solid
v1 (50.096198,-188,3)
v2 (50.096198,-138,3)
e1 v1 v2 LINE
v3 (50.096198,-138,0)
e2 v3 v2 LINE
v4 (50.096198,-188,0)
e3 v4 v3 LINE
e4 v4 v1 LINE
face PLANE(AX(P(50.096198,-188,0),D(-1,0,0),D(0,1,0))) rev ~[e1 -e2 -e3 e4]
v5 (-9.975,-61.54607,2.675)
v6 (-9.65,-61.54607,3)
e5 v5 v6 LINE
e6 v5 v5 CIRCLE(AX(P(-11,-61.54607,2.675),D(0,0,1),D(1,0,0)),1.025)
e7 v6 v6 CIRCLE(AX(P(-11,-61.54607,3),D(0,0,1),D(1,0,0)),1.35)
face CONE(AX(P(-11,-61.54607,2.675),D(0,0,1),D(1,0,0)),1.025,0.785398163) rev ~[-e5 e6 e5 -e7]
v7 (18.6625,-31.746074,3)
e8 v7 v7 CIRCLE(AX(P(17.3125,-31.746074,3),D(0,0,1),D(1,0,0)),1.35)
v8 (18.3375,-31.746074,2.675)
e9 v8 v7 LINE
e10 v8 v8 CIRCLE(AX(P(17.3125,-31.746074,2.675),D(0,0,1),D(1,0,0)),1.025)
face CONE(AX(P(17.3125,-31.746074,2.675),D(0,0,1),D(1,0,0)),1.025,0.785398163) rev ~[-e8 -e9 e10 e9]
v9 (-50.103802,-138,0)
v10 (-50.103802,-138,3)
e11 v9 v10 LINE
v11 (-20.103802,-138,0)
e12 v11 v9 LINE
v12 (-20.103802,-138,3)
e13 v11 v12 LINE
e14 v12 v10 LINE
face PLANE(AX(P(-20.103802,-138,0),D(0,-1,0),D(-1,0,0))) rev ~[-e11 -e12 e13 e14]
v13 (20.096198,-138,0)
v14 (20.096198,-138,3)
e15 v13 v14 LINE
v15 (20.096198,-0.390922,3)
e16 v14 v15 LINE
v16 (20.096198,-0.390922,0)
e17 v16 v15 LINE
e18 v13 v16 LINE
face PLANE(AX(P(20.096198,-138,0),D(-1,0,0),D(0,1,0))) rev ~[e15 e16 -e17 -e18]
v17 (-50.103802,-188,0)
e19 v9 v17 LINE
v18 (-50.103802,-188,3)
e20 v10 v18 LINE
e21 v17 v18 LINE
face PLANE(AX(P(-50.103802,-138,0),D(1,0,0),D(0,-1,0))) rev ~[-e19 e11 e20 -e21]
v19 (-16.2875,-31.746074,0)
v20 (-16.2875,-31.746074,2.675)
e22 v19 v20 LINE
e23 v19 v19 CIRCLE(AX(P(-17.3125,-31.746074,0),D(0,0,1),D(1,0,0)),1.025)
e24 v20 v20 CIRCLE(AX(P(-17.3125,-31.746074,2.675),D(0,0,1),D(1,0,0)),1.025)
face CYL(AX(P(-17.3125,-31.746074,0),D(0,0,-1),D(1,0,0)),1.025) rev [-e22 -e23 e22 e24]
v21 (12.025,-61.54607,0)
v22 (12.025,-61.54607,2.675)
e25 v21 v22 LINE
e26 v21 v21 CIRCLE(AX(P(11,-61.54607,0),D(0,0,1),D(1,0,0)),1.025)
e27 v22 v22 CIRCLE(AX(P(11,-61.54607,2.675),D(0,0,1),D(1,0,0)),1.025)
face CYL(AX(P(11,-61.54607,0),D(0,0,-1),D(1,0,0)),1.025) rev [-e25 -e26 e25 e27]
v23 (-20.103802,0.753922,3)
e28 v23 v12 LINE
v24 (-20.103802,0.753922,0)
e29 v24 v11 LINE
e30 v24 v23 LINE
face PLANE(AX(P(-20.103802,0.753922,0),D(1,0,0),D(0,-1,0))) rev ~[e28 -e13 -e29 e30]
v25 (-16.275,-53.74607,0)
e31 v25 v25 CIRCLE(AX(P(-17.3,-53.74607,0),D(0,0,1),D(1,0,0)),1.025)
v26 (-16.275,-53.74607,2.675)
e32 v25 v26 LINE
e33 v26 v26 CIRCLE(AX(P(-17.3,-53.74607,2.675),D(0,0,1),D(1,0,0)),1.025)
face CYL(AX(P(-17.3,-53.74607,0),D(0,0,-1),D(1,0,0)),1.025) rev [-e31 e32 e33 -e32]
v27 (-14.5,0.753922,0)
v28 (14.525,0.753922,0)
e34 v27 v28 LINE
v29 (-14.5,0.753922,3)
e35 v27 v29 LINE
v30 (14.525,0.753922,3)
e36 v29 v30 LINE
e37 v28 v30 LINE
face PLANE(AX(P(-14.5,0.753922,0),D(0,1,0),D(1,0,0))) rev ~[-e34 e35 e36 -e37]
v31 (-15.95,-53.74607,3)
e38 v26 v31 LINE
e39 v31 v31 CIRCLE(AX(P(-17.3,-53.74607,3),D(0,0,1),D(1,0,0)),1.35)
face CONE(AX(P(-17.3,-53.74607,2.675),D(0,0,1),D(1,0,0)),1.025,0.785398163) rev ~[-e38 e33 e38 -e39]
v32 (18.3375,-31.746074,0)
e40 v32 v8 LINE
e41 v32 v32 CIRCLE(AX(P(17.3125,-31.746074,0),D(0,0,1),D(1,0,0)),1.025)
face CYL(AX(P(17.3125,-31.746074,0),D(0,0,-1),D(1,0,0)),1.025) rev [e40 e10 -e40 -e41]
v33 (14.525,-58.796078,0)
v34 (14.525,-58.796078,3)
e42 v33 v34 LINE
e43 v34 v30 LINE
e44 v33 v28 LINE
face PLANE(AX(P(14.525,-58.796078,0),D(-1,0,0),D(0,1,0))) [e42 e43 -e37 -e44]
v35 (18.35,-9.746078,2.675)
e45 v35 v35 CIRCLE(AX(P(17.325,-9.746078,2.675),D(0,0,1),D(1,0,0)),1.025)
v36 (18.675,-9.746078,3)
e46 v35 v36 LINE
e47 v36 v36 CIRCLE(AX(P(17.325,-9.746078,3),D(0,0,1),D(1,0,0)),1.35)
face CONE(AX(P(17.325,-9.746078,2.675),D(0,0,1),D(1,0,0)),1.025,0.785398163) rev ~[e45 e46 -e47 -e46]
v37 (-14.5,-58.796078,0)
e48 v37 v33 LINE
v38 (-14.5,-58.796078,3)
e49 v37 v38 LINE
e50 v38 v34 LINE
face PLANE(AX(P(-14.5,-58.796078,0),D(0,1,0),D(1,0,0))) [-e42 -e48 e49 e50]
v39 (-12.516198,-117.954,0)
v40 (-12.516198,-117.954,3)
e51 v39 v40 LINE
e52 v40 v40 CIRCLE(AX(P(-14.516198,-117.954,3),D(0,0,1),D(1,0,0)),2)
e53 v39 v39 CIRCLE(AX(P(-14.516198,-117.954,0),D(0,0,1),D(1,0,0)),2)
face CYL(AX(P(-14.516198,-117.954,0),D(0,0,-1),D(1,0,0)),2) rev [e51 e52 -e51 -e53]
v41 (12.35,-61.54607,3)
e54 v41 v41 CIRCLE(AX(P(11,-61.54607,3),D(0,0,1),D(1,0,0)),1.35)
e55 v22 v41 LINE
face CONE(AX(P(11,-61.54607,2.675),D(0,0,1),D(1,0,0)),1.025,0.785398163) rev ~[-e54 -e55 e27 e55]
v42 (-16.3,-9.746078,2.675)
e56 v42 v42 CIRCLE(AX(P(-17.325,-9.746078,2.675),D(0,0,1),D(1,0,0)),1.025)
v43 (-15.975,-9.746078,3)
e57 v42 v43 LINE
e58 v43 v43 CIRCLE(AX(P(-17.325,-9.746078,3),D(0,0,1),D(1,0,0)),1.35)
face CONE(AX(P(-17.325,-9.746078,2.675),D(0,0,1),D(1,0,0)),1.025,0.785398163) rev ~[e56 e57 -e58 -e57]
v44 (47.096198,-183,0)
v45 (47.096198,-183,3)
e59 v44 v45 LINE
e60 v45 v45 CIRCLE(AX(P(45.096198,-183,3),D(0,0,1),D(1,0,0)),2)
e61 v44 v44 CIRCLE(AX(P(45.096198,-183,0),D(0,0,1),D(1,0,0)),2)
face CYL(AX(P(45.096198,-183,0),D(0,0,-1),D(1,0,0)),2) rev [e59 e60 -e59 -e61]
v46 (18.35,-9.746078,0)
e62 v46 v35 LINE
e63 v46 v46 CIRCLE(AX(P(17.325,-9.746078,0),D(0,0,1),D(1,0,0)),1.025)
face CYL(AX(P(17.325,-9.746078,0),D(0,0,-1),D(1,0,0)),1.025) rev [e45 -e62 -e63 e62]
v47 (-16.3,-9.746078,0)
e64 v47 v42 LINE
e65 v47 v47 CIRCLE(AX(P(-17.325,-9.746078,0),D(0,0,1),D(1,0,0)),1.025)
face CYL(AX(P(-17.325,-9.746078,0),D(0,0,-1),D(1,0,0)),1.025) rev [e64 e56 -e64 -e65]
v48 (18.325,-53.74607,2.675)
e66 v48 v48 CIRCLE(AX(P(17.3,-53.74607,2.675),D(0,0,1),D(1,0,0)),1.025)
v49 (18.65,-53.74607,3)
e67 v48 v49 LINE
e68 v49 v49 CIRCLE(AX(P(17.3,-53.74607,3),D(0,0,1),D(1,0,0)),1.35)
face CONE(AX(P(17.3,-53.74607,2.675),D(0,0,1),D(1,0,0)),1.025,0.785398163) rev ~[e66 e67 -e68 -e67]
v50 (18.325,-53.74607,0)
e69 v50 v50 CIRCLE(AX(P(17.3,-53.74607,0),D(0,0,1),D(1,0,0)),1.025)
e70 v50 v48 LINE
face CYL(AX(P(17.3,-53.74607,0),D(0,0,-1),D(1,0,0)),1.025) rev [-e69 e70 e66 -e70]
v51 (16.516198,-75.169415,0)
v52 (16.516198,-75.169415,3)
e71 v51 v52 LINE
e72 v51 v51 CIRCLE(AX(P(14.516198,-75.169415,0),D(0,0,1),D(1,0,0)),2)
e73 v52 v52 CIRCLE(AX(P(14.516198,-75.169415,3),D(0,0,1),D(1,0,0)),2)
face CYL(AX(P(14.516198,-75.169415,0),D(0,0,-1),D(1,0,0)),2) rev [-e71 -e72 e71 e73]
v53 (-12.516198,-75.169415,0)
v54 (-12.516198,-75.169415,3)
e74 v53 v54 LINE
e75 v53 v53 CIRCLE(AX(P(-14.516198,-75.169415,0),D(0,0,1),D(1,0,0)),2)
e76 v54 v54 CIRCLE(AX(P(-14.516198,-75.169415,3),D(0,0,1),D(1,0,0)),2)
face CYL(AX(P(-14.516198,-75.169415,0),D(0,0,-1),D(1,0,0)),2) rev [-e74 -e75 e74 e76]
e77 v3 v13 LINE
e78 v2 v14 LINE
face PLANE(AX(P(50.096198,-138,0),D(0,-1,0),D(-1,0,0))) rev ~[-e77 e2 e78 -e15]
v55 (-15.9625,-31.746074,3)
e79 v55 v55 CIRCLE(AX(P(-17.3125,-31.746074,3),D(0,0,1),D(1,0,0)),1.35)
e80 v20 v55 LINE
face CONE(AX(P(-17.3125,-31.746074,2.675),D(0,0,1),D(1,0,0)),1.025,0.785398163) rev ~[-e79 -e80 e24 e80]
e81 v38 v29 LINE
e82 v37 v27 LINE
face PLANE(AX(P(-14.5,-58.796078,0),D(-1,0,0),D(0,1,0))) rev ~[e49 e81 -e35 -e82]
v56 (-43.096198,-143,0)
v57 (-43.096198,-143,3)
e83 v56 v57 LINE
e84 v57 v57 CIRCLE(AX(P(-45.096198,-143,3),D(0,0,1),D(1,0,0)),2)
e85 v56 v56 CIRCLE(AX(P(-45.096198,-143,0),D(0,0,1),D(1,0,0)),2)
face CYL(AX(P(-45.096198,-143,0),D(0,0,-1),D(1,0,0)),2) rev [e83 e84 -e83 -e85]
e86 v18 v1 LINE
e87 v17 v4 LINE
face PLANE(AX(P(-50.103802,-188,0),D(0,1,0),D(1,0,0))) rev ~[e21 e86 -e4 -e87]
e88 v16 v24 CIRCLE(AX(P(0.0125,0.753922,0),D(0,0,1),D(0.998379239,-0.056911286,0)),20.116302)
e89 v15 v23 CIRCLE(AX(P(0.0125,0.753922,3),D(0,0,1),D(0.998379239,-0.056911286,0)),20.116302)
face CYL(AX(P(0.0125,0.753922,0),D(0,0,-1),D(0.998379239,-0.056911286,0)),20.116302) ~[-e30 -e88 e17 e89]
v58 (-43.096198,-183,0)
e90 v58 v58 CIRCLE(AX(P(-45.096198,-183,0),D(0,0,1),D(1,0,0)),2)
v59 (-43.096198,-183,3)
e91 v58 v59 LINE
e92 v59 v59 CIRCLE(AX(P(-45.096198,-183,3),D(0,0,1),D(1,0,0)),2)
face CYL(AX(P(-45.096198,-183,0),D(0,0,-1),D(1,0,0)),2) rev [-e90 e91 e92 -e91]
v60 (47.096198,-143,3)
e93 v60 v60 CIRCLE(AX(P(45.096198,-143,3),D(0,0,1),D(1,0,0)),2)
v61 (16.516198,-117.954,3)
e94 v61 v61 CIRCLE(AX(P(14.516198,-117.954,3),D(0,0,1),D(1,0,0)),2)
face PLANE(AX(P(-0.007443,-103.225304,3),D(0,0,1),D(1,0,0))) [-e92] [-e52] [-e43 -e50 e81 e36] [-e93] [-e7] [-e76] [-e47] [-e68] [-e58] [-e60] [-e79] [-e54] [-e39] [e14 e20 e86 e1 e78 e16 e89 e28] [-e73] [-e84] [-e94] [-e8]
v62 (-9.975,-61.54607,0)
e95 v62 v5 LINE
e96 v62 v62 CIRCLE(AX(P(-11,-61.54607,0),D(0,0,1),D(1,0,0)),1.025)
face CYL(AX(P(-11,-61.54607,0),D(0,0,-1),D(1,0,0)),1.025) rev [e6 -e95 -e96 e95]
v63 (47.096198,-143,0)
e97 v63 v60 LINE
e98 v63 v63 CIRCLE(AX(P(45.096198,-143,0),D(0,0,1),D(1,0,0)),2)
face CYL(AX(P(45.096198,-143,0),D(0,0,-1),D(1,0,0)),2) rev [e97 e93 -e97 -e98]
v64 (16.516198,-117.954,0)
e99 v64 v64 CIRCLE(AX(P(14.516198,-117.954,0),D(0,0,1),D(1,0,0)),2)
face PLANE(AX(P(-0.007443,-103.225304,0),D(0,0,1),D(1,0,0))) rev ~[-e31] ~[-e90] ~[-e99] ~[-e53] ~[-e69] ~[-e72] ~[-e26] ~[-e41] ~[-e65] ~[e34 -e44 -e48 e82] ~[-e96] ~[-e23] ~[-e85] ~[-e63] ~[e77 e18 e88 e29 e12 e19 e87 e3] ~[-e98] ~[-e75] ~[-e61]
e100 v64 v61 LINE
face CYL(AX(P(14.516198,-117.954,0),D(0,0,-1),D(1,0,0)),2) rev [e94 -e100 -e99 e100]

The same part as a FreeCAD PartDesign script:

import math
import FreeCAD as App
import Part
import Sketcher
from FreeCAD import Vector
Q = App.Units.Quantity


def edges_at(feature, points):
    """Names of the edges that pass closest to the given points."""
    edges = feature.Shape.Edges
    near = lambda p: min(range(len(edges)), key=lambda i: edges[i].distToShape(Part.Vertex(*p))[0])
    return sorted({f"Edge{near(p) + 1}" for p in points})

doc = App.newDocument("Part")
body = doc.addObject("PartDesign::Body", "Body")

# Sketch on XY plane
sketch1 = body.newObject("Sketcher::SketchObject", "Sketch")
sketch1.AttachmentSupport = (doc.getObject("XY_Plane"), [""])
sketch1.MapMode = "FlatFace"
sketch1.addGeometry(Part.LineSegment(Vector(-20.1, 0.8, 0), Vector(-20.1, -138, 0)), False)
sketch1.addGeometry(Part.LineSegment(Vector(-20.1, -138, 0), Vector(-50.1, -138, 0)), False)
sketch1.addGeometry(Part.LineSegment(Vector(-50.1, -138, 0), Vector(-50.1, -188, 0)), False)
sketch1.addGeometry(Part.LineSegment(Vector(-50.1, -188, 0), Vector(50.1, -188, 0)), False)
sketch1.addGeometry(Part.LineSegment(Vector(50.1, -188, 0), Vector(50.1, -138, 0)), False)
sketch1.addGeometry(Part.LineSegment(Vector(50.1, -138, 0), Vector(20.1, -138, 0)), False)
sketch1.addGeometry(Part.LineSegment(Vector(20.1, -138, 0), Vector(20.1, -0.4, 0)), False)
sketch1.addGeometry(Part.ArcOfCircle(Part.Circle(Vector(0, 0.8, 0), Vector(0, 0, 1), 20.1), math.radians(-3), math.radians(180)), False)
sketch1.addGeometry(Part.Circle(Vector(-45.1, -183, 0), Vector(0, 0, 1), 2), False)
sketch1.addGeometry(Part.Circle(Vector(-45.1, -143, 0), Vector(0, 0, 1), 2), False)
sketch1.addGeometry(Part.Circle(Vector(-14.5, -118, 0), Vector(0, 0, 1), 2), False)
sketch1.addGeometry(Part.Circle(Vector(45.1, -183, 0), Vector(0, 0, 1), 2), False)
sketch1.addGeometry(Part.Circle(Vector(45.1, -143, 0), Vector(0, 0, 1), 2), False)
sketch1.addGeometry(Part.Circle(Vector(14.5, -118, 0), Vector(0, 0, 1), 2), False)
sketch1.addGeometry(Part.Circle(Vector(-14.5, -75.2, 0), Vector(0, 0, 1), 2), False)
sketch1.addGeometry(Part.Circle(Vector(-17.3, -53.7, 0), Vector(0, 0, 1), 1), False)
sketch1.addGeometry(Part.Circle(Vector(-11, -61.5, 0), Vector(0, 0, 1), 1), False)
sketch1.addGeometry(Part.Circle(Vector(-17.3, -31.7, 0), Vector(0, 0, 1), 1), False)
sketch1.addGeometry(Part.Circle(Vector(-17.3, -9.7, 0), Vector(0, 0, 1), 1), False)
sketch1.addGeometry(Part.Circle(Vector(14.5, -75.2, 0), Vector(0, 0, 1), 2), False)
sketch1.addGeometry(Part.Circle(Vector(11, -61.5, 0), Vector(0, 0, 1), 1), False)
sketch1.addGeometry(Part.Circle(Vector(17.3, -53.7, 0), Vector(0, 0, 1), 1), False)
sketch1.addGeometry(Part.LineSegment(Vector(14.5, -58.8, 0), Vector(-14.5, -58.8, 0)), False)
sketch1.addGeometry(Part.LineSegment(Vector(-14.5, -58.8, 0), Vector(-14.5, 0.8, 0)), False)
sketch1.addGeometry(Part.LineSegment(Vector(-14.5, 0.8, 0), Vector(14.5, 0.8, 0)), False)
sketch1.addGeometry(Part.LineSegment(Vector(14.5, 0.8, 0), Vector(14.5, -58.8, 0)), False)
sketch1.addGeometry(Part.Circle(Vector(17.3, -31.7, 0), Vector(0, 0, 1), 1), False)
sketch1.addGeometry(Part.Circle(Vector(17.3, -9.7, 0), Vector(0, 0, 1), 1), False)
sketch1.addConstraint(Sketcher.Constraint("Coincident", 0, 2, 1, 1))
sketch1.addConstraint(Sketcher.Constraint("Coincident", 1, 2, 2, 1))
sketch1.addConstraint(Sketcher.Constraint("Coincident", 2, 2, 3, 1))
sketch1.addConstraint(Sketcher.Constraint("Coincident", 3, 2, 4, 1))
sketch1.addConstraint(Sketcher.Constraint("Coincident", 4, 2, 5, 1))
sketch1.addConstraint(Sketcher.Constraint("Coincident", 5, 2, 6, 1))
sketch1.addConstraint(Sketcher.Constraint("Coincident", 6, 2, 7, 1))
sketch1.addConstraint(Sketcher.Constraint("Tangent", 7, 2, 0, 1))
sketch1.addConstraint(Sketcher.Constraint("Coincident", 22, 2, 23, 1))
sketch1.addConstraint(Sketcher.Constraint("Coincident", 23, 2, 24, 1))
sketch1.addConstraint(Sketcher.Constraint("Coincident", 24, 2, 25, 1))
sketch1.addConstraint(Sketcher.Constraint("Coincident", 25, 2, 22, 1))
sketch1.addConstraint(Sketcher.Constraint("Vertical", 0))
sketch1.addConstraint(Sketcher.Constraint("Horizontal", 1))
sketch1.addConstraint(Sketcher.Constraint("Vertical", 2))
sketch1.addConstraint(Sketcher.Constraint("Horizontal", 3))
sketch1.addConstraint(Sketcher.Constraint("Vertical", 4))
sketch1.addConstraint(Sketcher.Constraint("Horizontal", 5))
sketch1.addConstraint(Sketcher.Constraint("Vertical", 6))
sketch1.addConstraint(Sketcher.Constraint("Horizontal", 22))
sketch1.addConstraint(Sketcher.Constraint("Vertical", 23))
sketch1.addConstraint(Sketcher.Constraint("Horizontal", 24))
sketch1.addConstraint(Sketcher.Constraint("Vertical", 25))
sketch1.addConstraint(Sketcher.Constraint("Equal", 8, 9))
sketch1.addConstraint(Sketcher.Constraint("Equal", 9, 10))
sketch1.addConstraint(Sketcher.Constraint("Equal", 10, 11))
sketch1.addConstraint(Sketcher.Constraint("Equal", 11, 12))
sketch1.addConstraint(Sketcher.Constraint("Equal", 12, 13))
sketch1.addConstraint(Sketcher.Constraint("Equal", 13, 14))
sketch1.addConstraint(Sketcher.Constraint("Equal", 15, 16))
sketch1.addConstraint(Sketcher.Constraint("Equal", 16, 17))
sketch1.addConstraint(Sketcher.Constraint("Equal", 17, 18))
sketch1.addConstraint(Sketcher.Constraint("Equal", 14, 19))
sketch1.addConstraint(Sketcher.Constraint("Equal", 18, 20))
sketch1.addConstraint(Sketcher.Constraint("Equal", 20, 21))
sketch1.addConstraint(Sketcher.Constraint("Equal", 21, 26))
sketch1.addConstraint(Sketcher.Constraint("Equal", 26, 27))
sketch1.addConstraint(Sketcher.Constraint("Symmetric", 8, 3, 11, 3, -2))
sketch1.addConstraint(Sketcher.Constraint("Symmetric", 9, 3, 12, 3, -2))
sketch1.addConstraint(Sketcher.Constraint("Symmetric", 10, 3, 13, 3, -2))
sketch1.addConstraint(Sketcher.Constraint("Symmetric", 14, 3, 19, 3, -2))
sketch1.addConstraint(Sketcher.Constraint("Symmetric", 16, 3, 20, 3, -2))
sketch1.addConstraint(Sketcher.Constraint("Symmetric", 15, 3, 21, 3, -2))
sketch1.addConstraint(Sketcher.Constraint("Symmetric", 17, 3, 26, 3, -2))
sketch1.addConstraint(Sketcher.Constraint("Symmetric", 18, 3, 27, 3, -2))
sketch1.addConstraint(Sketcher.Constraint("Horizontal", 1, 2, 4, 2))
sketch1.addConstraint(Sketcher.Constraint("Horizontal", 7, 2, 23, 2))
sketch1.addConstraint(Sketcher.Constraint("Vertical", 8, 3, 9, 3))
sketch1.addConstraint(Sketcher.Constraint("Vertical", 10, 3, 14, 3))
sketch1.addConstraint(Sketcher.Constraint("Equal", 1, 5))
sketch1.addConstraint(Sketcher.Constraint("Diameter", 8, Q("4 mm")))
sketch1.addConstraint(Sketcher.Constraint("Diameter", 15, Q("2.05 mm")))
sketch1.addConstraint(Sketcher.Constraint("DistanceX", 1, 2, 1, 1, Q("30 mm")))
sketch1.addConstraint(Sketcher.Constraint("DistanceY", 2, 2, 2, 1, Q("50 mm")))
sketch1.addConstraint(Sketcher.Constraint("DistanceX", 3, 1, 3, 2, Q("100.2 mm")))
sketch1.addConstraint(Sketcher.Constraint("DistanceY", 8, 3, -1, 1, Q("183 mm")))
sketch1.addConstraint(Sketcher.Constraint("DistanceY", 9, 3, -1, 1, Q("143 mm")))
sketch1.addConstraint(Sketcher.Constraint("DistanceX", 16, 3, -1, 1, Q("11 mm")))
sketch1.addConstraint(Sketcher.Constraint("DistanceY", 0, 2, -1, 1, Q("138 mm")))
sketch1.addConstraint(Sketcher.Constraint("DistanceX", 11, 3, 3, 2, Q("5 mm")))
sketch1.addConstraint(Sketcher.Constraint("DistanceY", 23, 1, 23, 2, Q("59.55 mm")))
sketch1.addConstraint(Sketcher.Constraint("DistanceX", 15, 3, -1, 1, Q("17.3 mm")))
sketch1.addConstraint(Sketcher.Constraint("DistanceX", 22, 2, -1, 1, Q("14.5 mm")))
sketch1.addConstraint(Sketcher.Constraint("Radius", 7, Q("20.116302 mm")))
sketch1.addConstraint(Sketcher.Constraint("DistanceY", 16, 3, 15, 3, Q("7.8 mm")))
sketch1.addConstraint(Sketcher.Constraint("DistanceY", 18, 3, 7, 3, Q("10.5 mm")))
sketch1.addConstraint(Sketcher.Constraint("DistanceX", 7, 3, 26, 3, Q("17.3 mm")))
sketch1.addConstraint(Sketcher.Constraint("DistanceX", 24, 2, 27, 3, Q("2.8 mm")))
sketch1.addConstraint(Sketcher.Constraint("DistanceX", 22, 2, 22, 1, Q("29.025 mm")))
sketch1.addConstraint(Sketcher.Constraint("DistanceX", 9, 3, 10, 3, Q("30.58 mm")))
sketch1.addConstraint(Sketcher.Constraint("DistanceY", 10, 3, -1, 1, Q("117.954 mm")))
sketch1.addConstraint(Sketcher.Constraint("DistanceX", 17, 3, 7, 3, Q("17.325 mm")))
sketch1.addConstraint(Sketcher.Constraint("DistanceY", 0, 2, 0, 1, Q("138.753922 mm")))
sketch1.addConstraint(Sketcher.Constraint("DistanceY", 15, 3, -1, 1, Q("53.74607 mm")))
sketch1.addConstraint(Sketcher.Constraint("DistanceY", 14, 3, 17, 3, Q("43.423341 mm")))
sketch1.addConstraint(Sketcher.Constraint("DistanceY", 26, 3, 6, 2, Q("31.355152 mm")))
pad1 = body.newObject("PartDesign::Pad", "Pad")
pad1.Profile = sketch1
pad1.Length = 3
doc.recompute()

chamfer = body.newObject("PartDesign::Chamfer", "Chamfer")
chamfer.Base = (pad1, edges_at(pad1, [
    (16.288, -31.746, 3),
    (16.275, -53.746, 3),
    (-18.325, -53.746, 3),
    (9.975, -61.546, 3),
    (-12.025, -61.546, 3),
    (-18.337, -31.746, 3),
    (-18.35, -9.746, 3),
    (16.3, -9.746, 3),
]))
chamfer.Size = 0.325

doc.recompute()
